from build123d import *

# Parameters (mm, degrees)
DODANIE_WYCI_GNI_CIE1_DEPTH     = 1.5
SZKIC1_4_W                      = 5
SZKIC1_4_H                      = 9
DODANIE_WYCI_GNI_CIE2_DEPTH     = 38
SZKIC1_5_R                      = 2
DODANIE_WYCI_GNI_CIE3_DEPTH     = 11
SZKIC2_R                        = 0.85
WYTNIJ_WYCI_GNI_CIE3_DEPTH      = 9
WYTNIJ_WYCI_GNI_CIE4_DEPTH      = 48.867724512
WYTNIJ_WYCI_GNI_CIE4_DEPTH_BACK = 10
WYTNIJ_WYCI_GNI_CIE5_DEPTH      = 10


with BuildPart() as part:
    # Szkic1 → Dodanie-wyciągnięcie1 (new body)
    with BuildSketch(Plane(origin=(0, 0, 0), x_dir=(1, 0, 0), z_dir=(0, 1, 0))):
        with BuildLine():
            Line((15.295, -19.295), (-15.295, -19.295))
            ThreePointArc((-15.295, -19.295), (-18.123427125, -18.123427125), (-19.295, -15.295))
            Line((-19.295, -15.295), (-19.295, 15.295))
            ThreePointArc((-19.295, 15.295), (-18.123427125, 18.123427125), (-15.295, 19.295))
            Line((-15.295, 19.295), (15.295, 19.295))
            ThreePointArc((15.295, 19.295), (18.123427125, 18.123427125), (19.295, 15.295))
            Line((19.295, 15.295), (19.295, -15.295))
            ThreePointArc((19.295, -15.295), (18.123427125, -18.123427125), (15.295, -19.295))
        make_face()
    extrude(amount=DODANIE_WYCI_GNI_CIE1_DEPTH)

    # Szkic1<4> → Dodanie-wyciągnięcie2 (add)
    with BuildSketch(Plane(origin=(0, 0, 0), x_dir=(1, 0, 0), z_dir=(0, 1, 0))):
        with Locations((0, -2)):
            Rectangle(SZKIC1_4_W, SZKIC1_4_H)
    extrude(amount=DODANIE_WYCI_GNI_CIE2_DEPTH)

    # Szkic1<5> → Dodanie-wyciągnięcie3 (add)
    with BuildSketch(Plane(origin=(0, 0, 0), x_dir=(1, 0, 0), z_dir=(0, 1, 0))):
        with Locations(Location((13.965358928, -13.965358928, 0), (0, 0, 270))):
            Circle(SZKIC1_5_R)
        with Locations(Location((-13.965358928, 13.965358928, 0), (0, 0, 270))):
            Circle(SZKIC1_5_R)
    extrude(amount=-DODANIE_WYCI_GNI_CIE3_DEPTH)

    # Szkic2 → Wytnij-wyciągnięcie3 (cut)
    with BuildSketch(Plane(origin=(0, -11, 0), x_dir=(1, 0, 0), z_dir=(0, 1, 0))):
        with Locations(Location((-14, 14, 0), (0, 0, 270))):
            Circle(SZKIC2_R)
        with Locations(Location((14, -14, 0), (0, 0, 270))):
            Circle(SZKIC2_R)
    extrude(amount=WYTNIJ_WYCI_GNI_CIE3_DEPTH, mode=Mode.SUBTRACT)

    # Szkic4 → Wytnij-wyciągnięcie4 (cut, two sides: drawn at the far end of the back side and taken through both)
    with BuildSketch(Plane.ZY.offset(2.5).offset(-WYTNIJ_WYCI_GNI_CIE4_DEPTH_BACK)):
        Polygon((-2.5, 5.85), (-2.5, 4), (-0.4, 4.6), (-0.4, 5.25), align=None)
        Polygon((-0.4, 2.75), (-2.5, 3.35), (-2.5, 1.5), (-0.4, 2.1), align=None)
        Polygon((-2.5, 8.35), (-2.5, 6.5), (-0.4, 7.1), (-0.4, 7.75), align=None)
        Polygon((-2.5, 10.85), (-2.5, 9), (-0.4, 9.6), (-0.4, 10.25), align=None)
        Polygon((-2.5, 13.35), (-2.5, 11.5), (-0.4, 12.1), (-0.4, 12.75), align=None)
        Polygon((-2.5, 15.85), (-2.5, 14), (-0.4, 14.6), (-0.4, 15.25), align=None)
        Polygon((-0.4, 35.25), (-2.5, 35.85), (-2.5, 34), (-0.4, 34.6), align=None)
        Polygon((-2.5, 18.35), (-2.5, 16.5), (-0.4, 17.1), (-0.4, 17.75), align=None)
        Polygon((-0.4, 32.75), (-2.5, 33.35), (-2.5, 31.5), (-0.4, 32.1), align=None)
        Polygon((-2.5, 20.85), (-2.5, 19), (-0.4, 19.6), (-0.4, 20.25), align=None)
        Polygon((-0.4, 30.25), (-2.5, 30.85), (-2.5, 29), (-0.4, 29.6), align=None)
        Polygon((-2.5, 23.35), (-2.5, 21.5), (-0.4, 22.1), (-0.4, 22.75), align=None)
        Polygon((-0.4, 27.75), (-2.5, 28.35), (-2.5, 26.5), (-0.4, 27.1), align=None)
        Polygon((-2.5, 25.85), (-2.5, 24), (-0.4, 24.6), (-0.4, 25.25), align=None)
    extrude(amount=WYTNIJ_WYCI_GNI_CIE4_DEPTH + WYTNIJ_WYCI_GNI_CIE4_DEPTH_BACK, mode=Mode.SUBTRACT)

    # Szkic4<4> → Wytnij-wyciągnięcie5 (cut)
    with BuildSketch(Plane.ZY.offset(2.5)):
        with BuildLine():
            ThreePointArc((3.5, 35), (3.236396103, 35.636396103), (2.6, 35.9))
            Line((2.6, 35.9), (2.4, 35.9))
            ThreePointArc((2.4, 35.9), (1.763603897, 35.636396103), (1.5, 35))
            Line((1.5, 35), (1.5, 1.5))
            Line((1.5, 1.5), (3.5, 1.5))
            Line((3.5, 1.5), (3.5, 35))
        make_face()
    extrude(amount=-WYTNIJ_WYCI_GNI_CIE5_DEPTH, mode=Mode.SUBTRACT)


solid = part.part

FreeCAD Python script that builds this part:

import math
import FreeCAD as App
import Part
import Sketcher

V = App.Vector
Q = App.Units.Quantity


def add_polygon(sketch, points):
    """Adds a closed chain of lines whose ends are joined by coincident constraints."""
    first, n = sketch.GeometryCount, len(points)
    for a, b in zip(points, points[1:] + points[:1]):
        sketch.addGeometry(Part.LineSegment(App.Vector(*a, 0), App.Vector(*b, 0)), False)
    for i in range(n):
        sketch.addConstraint(Sketcher.Constraint("Coincident", first + i, 2, first + (i + 1) % n, 1))

doc = App.newDocument("Part")
body = doc.addObject("PartDesign::Body", "Body")

# Sketch on XZ plane
sketch1 = body.newObject("Sketcher::SketchObject", "Sketch")
sketch1.AttachmentSupport = (doc.getObject("XZ_Plane"), [""])
sketch1.MapMode = "FlatFace"
sketch1.addGeometry([
    Part.LineSegment(V(-15.3, 19.3, 0), V(15.3, 19.3, 0)),  # 0
    Part.ArcOfCircle(Part.Circle(V(15.3, 15.3, 0), V(0, 0, 1), 4), math.radians(0), math.radians(90)),  # 1
    Part.LineSegment(V(19.3, 15.3, 0), V(19.3, -15.3, 0)),  # 2
    Part.ArcOfCircle(Part.Circle(V(15.3, -15.3, 0), V(0, 0, 1), 4), math.radians(-90), math.radians(0)),  # 3
    Part.LineSegment(V(15.3, -19.3, 0), V(-15.3, -19.3, 0)),  # 4
    Part.ArcOfCircle(Part.Circle(V(-15.3, -15.3, 0), V(0, 0, 1), 4), math.radians(180), math.radians(270)),  # 5
    Part.LineSegment(V(-19.3, -15.3, 0), V(-19.3, 15.3, 0)),  # 6
    Part.ArcOfCircle(Part.Circle(V(-15.3, 15.3, 0), V(0, 0, 1), 4), math.radians(90), math.radians(180)),  # 7
], False)
sketch1.addConstraint([
    Sketcher.Constraint("Tangent", 0, 2, 1, 2),
    Sketcher.Constraint("Tangent", 1, 1, 2, 1),
    Sketcher.Constraint("Tangent", 2, 2, 3, 2),
    Sketcher.Constraint("Tangent", 3, 1, 4, 1),
    Sketcher.Constraint("Tangent", 4, 2, 5, 2),
    Sketcher.Constraint("Tangent", 5, 1, 6, 1),
    Sketcher.Constraint("Tangent", 6, 2, 7, 2),
    Sketcher.Constraint("Tangent", 7, 1, 0, 1),
    Sketcher.Constraint("Horizontal", 0),
    Sketcher.Constraint("Vertical", 2),
    Sketcher.Constraint("Horizontal", 4),
    Sketcher.Constraint("Vertical", 6),
    Sketcher.Constraint("Equal", 1, 3),
    Sketcher.Constraint("Equal", 3, 5),
    Sketcher.Constraint("Equal", 5, 7),
    Sketcher.Constraint("Symmetric", 1, 3, 5, 3, -1, 1),
    Sketcher.Constraint("Equal", 4, 2),
    Sketcher.Constraint("Radius", 1, Q("4 mm")),
    Sketcher.Constraint("DistanceX", 0, 1, 0, 2, Q("30.59 mm")),
])
pad1 = body.newObject("PartDesign::Pad", "Pad")
pad1.Profile = sketch1
pad1.Length = 1.5
pad1.Reversed = True

# Sketch on XZ plane
sketch2 = body.newObject("Sketcher::SketchObject", "Sketch001")
sketch2.AttachmentSupport = (doc.getObject("XZ_Plane"), [""])
sketch2.MapMode = "FlatFace"
add_polygon(sketch2, [(-2, -2), (-2, 6), (2, 6), (2, -2)])  # lines 0-3
sketch2.addConstraint([
    Sketcher.Constraint("Vertical", 0),
    Sketcher.Constraint("Horizontal", 1),
    Sketcher.Constraint("Vertical", 2),
    Sketcher.Constraint("Horizontal", 3),
    Sketcher.Constraint("DistanceX", 1, 1, 1, 2, Q("5 mm")),
    Sketcher.Constraint("DistanceY", 0, 1, 0, 2, Q("9 mm")),
    Sketcher.Constraint("DistanceX", 0, 2, -1, 1, Q("2.5 mm")),
    Sketcher.Constraint("DistanceY", -1, 1, 0, 2, Q("6.5 mm")),
])
pad2 = body.newObject("PartDesign::Pad", "Pad001")
pad2.Profile = sketch2
pad2.Length = 38
pad2.Reversed = True

# Sketch on XZ plane
sketch3 = body.newObject("Sketcher::SketchObject", "Sketch002")
sketch3.AttachmentSupport = (doc.getObject("XZ_Plane"), [""])
sketch3.MapMode = "FlatFace"
sketch3.addGeometry([
    Part.Circle(V(14, 14, 0), V(0, 0, 1), 2),
    Part.Circle(V(-14, -14, 0), V(0, 0, 1), 2),
], False)
sketch3.addConstraint([
    Sketcher.Constraint("Equal", 0, 1),
    Sketcher.Constraint("Symmetric", 0, 3, 1, 3, -1, 1),
    Sketcher.Constraint("Diameter", 0, Q("4 mm")),
    Sketcher.Constraint("DistanceX", -1, 1, 0, 3, Q("13.965359 mm")),
    Sketcher.Constraint("DistanceY", -1, 1, 0, 3, Q("13.965359 mm")),
])
pad3 = body.newObject("PartDesign::Pad", "Pad002")
pad3.Profile = sketch3
pad3.Length = 11

# Sketch on XZ plane
sketch4 = body.newObject("Sketcher::SketchObject", "Sketch003")
sketch4.AttachmentSupport = (doc.getObject("XZ_Plane"), [""])
sketch4.MapMode = "FlatFace"
sketch4.AttachmentOffset = App.Placement(V(0, 0, 11), App.Rotation())
sketch4.addGeometry([
    Part.Circle(V(-14, -14, 0), V(0, 0, 1), 0.8),
    Part.Circle(V(14, 14, 0), V(0, 0, 1), 0.8),
], False)
sketch4.addConstraint([
    Sketcher.Constraint("Equal", 0, 1),
    Sketcher.Constraint("Symmetric", 0, 3, 1, 3, -1, 1),
    Sketcher.Constraint("Diameter", 0, Q("1.7 mm")),
    Sketcher.Constraint("DistanceX", 0, 3, -1, 1, Q("14 mm")),
    Sketcher.Constraint("DistanceY", 0, 3, -1, 1, Q("14 mm")),
])
pocket1 = body.newObject("PartDesign::Pocket", "Pocket")
pocket1.Profile = sketch4
pocket1.Length = 9

# Sketch on YZ plane
sketch5 = body.newObject("Sketcher::SketchObject", "Sketch004")
sketch5.AttachmentSupport = (doc.getObject("YZ_Plane"), [""])
sketch5.MapMode = "FlatFace"
sketch5.AttachmentOffset = App.Placement(V(0, 0, -2.5), App.Rotation())
add_polygon(sketch5, [(5.8, -2.5), (4, -2.5), (4.6, -0.4), (5.2, -0.4)])  # lines 0-3
add_polygon(sketch5, [(2.8, -0.4), (3.4, -2.5), (1.5, -2.5), (2.1, -0.4)])  # lines 4-7
add_polygon(sketch5, [(8.3, -2.5), (6.5, -2.5), (7.1, -0.4), (7.8, -0.4)])  # lines 8-11
add_polygon(sketch5, [(10.8, -2.5), (9, -2.5), (9.6, -0.4), (10.2, -0.4)])  # lines 12-15
add_polygon(sketch5, [(13.3, -2.5), (11.5, -2.5), (12.1, -0.4), (12.8, -0.4)])  # lines 16-19
add_polygon(sketch5, [(15.8, -2.5), (14, -2.5), (14.6, -0.4), (15.2, -0.4)])  # lines 20-23
add_polygon(sketch5, [(35.2, -0.4), (35.9, -2.5), (34, -2.5), (34.6, -0.4)])  # lines 24-27
add_polygon(sketch5, [(18.4, -2.5), (16.5, -2.5), (17.1, -0.4), (17.8, -0.4)])  # lines 28-31
add_polygon(sketch5, [(32.8, -0.4), (33.4, -2.5), (31.5, -2.5), (32.1, -0.4)])  # lines 32-35
add_polygon(sketch5, [(20.9, -2.5), (19, -2.5), (19.6, -0.4), (20.2, -0.4)])  # lines 36-39
add_polygon(sketch5, [(30.2, -0.4), (30.9, -2.5), (29, -2.5), (29.6, -0.4)])  # lines 40-43
add_polygon(sketch5, [(23.4, -2.5), (21.5, -2.5), (22.1, -0.4), (22.8, -0.4)])  # lines 44-47
add_polygon(sketch5, [(27.8, -0.4), (28.4, -2.5), (26.5, -2.5), (27.1, -0.4)])  # lines 48-51
add_polygon(sketch5, [(25.9, -2.5), (24, -2.5), (24.6, -0.4), (25.2, -0.4)])  # lines 52-55
sketch5.addConstraint([
    Sketcher.Constraint("Horizontal", 0),
    Sketcher.Constraint("Horizontal", 2),
    Sketcher.Constraint("Horizontal", 5),
    Sketcher.Constraint("Horizontal", 7),
    Sketcher.Constraint("Horizontal", 8),
    Sketcher.Constraint("Horizontal", 10),
    Sketcher.Constraint("Horizontal", 12),
    Sketcher.Constraint("Horizontal", 14),
    Sketcher.Constraint("Horizontal", 16),
    Sketcher.Constraint("Horizontal", 18),
    Sketcher.Constraint("Horizontal", 20),
    Sketcher.Constraint("Horizontal", 22),
    Sketcher.Constraint("Horizontal", 25),
    Sketcher.Constraint("Horizontal", 27),
    Sketcher.Constraint("Horizontal", 28),
    Sketcher.Constraint("Horizontal", 30),
    Sketcher.Constraint("Horizontal", 33),
    Sketcher.Constraint("Horizontal", 35),
    Sketcher.Constraint("Horizontal", 36),
    Sketcher.Constraint("Horizontal", 38),
    Sketcher.Constraint("Horizontal", 41),
    Sketcher.Constraint("Horizontal", 43),
    Sketcher.Constraint("Horizontal", 44),
    Sketcher.Constraint("Horizontal", 46),
    Sketcher.Constraint("Horizontal", 49),
    Sketcher.Constraint("Horizontal", 51),
    Sketcher.Constraint("Horizontal", 52),
    Sketcher.Constraint("Horizontal", 54),
    Sketcher.Constraint("Parallel", 3, 4),
    Sketcher.Constraint("Parallel", 1, 6),
    Sketcher.Constraint("Parallel", 6, 9),
    Sketcher.Constraint("Parallel", 4, 11),
    Sketcher.Constraint("Parallel", 9, 13),
    Sketcher.Constraint("Parallel", 11, 15),
    Sketcher.Constraint("Parallel", 13, 17),
    Sketcher.Constraint("Parallel", 15, 19),
    Sketcher.Constraint("Parallel", 17, 21),
    Sketcher.Constraint("Parallel", 19, 23),
    Sketcher.Constraint("Parallel", 23, 24),
    Sketcher.Constraint("Parallel", 21, 26),
    Sketcher.Constraint("Parallel", 26, 29),
    Sketcher.Constraint("Parallel", 24, 31),
    Sketcher.Constraint("Parallel", 31, 32),
    Sketcher.Constraint("Parallel", 29, 34),
    Sketcher.Constraint("Parallel", 34, 37),
    Sketcher.Constraint("Parallel", 32, 39),
    Sketcher.Constraint("Parallel", 39, 40),
    Sketcher.Constraint("Parallel", 37, 42),
    Sketcher.Constraint("Parallel", 42, 45),
    Sketcher.Constraint("Parallel", 40, 47),
    Sketcher.Constraint("Parallel", 47, 48),
    Sketcher.Constraint("Parallel", 45, 50),
    Sketcher.Constraint("Parallel", 50, 53),
    Sketcher.Constraint("Parallel", 48, 55),
    Sketcher.Constraint("Horizontal", 3, 2, 4, 2),
    Sketcher.Constraint("Horizontal", 2, 2, 6, 2),
    Sketcher.Constraint("Horizontal", 5, 2, 8, 2),
    Sketcher.Constraint("Horizontal", 7, 2, 9, 2),
    Sketcher.Constraint("Horizontal", 11, 2, 12, 2),
    Sketcher.Constraint("Horizontal", 10, 2, 13, 2),
    Sketcher.Constraint("Horizontal", 15, 2, 16, 2),
    Sketcher.Constraint("Horizontal", 14, 2, 17, 2),
    Sketcher.Constraint("Horizontal", 19, 2, 20, 2),
    Sketcher.Constraint("Horizontal", 18, 2, 21, 2),
    Sketcher.Constraint("Horizontal", 23, 2, 24, 2),
    Sketcher.Constraint("Horizontal", 22, 2, 26, 2),
    Sketcher.Constraint("Horizontal", 25, 2, 28, 2),
    Sketcher.Constraint("Horizontal", 27, 2, 29, 2),
    Sketcher.Constraint("Horizontal", 31, 2, 32, 2),
    Sketcher.Constraint("Horizontal", 30, 2, 34, 2),
    Sketcher.Constraint("Horizontal", 33, 2, 36, 2),
    Sketcher.Constraint("Horizontal", 35, 2, 37, 2),
    Sketcher.Constraint("Horizontal", 39, 2, 40, 2),
    Sketcher.Constraint("Horizontal", 38, 2, 42, 2),
    Sketcher.Constraint("Horizontal", 41, 2, 44, 2),
    Sketcher.Constraint("Horizontal", 43, 2, 45, 2),
    Sketcher.Constraint("Horizontal", 47, 2, 48, 2),
    Sketcher.Constraint("Horizontal", 46, 2, 50, 2),
    Sketcher.Constraint("Horizontal", 49, 2, 52, 2),
    Sketcher.Constraint("Horizontal", 51, 2, 53, 2),
    Sketcher.Constraint("Equal", 0, 5),
    Sketcher.Constraint("Equal", 5, 8),
    Sketcher.Constraint("Equal", 8, 12),
    Sketcher.Constraint("Equal", 12, 16),
    Sketcher.Constraint("Equal", 16, 20),
    Sketcher.Constraint("Equal", 20, 25),
    Sketcher.Constraint("Equal", 25, 28),
    Sketcher.Constraint("Equal", 28, 33),
    Sketcher.Constraint("Equal", 33, 36),
    Sketcher.Constraint("Equal", 36, 41),
    Sketcher.Constraint("Equal", 41, 44),
    Sketcher.Constraint("Equal", 44, 49),
    Sketcher.Constraint("Equal", 49, 52),
    Sketcher.Constraint("Equal", 1, 3),
    Sketcher.Constraint("DistanceX", -1, 1, 0, 2, Q("4 mm")),
    Sketcher.Constraint("DistanceX", -1, 1, 12, 2, Q("9 mm")),
    Sketcher.Constraint("DistanceX", -1, 1, 20, 2, Q("14 mm")),
    Sketcher.Constraint("DistanceX", -1, 1, 25, 2, Q("34 mm")),
    Sketcher.Constraint("DistanceX", -1, 1, 36, 2, Q("19 mm")),
    Sketcher.Constraint("DistanceX", -1, 1, 41, 2, Q("29 mm")),
    Sketcher.Constraint("DistanceX", -1, 1, 52, 2, Q("24 mm")),
    Sketcher.Constraint("DistanceX", 31, 2, 32, 2, Q("15 mm")),
    Sketcher.Constraint("DistanceX", 0, 2, 0, 1, Q("1.85 mm")),
    Sketcher.Constraint("DistanceX", 2, 1, 2, 2, Q("0.65 mm")),
    Sketcher.Constraint("DistanceY", 0, 2, -1, 1, Q("2.5 mm")),
    Sketcher.Constraint("DistanceY", 1, 2, -1, 1, Q("0.4 mm")),
    Sketcher.Constraint("DistanceX", -1, 1, 5, 2, Q("1.5 mm")),
    Sketcher.Constraint("DistanceX", -1, 1, 8, 2, Q("6.5 mm")),
    Sketcher.Constraint("DistanceX", -1, 1, 16, 2, Q("11.5 mm")),
    Sketcher.Constraint("DistanceX", -1, 1, 28, 2, Q("16.5 mm")),
    Sketcher.Constraint("DistanceX", -1, 1, 44, 2, Q("21.5 mm")),
    Sketcher.Constraint("DistanceX", -1, 1, 49, 2, Q("26.5 mm")),
])
pocket2 = body.newObject("PartDesign::Pocket", "Pocket001")
pocket2.Profile = sketch5
pocket2.Type = "ThroughAll"
pocket2.Midplane = True

# Sketch on YZ plane
sketch6 = body.newObject("Sketcher::SketchObject", "Sketch005")
sketch6.AttachmentSupport = (doc.getObject("YZ_Plane"), [""])
sketch6.MapMode = "FlatFace"
sketch6.AttachmentOffset = App.Placement(V(0, 0, -2.5), App.Rotation())
sketch6.addGeometry([
    Part.ArcOfCircle(Part.Circle(V(35, 2.6, 0), V(0, 0, 1), 0.9), math.radians(0), math.radians(90)),  # 0
    Part.LineSegment(V(35.9, 2.6, 0), V(35.9, 2.4, 0)),  # 1
    Part.ArcOfCircle(Part.Circle(V(35, 2.4, 0), V(0, 0, 1), 0.9), math.radians(-90), math.radians(0)),  # 2
    Part.LineSegment(V(35, 1.5, 0), V(1.5, 1.5, 0)),  # 3
    Part.LineSegment(V(1.5, 1.5, 0), V(1.5, 3.5, 0)),  # 4
    Part.LineSegment(V(1.5, 3.5, 0), V(35, 3.5, 0)),  # 5
], False)
sketch6.addConstraint([
    Sketcher.Constraint("Tangent", 0, 1, 1, 1),
    Sketcher.Constraint("Tangent", 1, 2, 2, 2),
    Sketcher.Constraint("Tangent", 2, 1, 3, 1),
    Sketcher.Constraint("Coincident", 3, 2, 4, 1),
    Sketcher.Constraint("Coincident", 4, 2, 5, 1),
    Sketcher.Constraint("Tangent", 5, 2, 0, 2),
    Sketcher.Constraint("Vertical", 1),
    Sketcher.Constraint("Horizontal", 3),
    Sketcher.Constraint("Vertical", 4),
    Sketcher.Constraint("Horizontal", 5),
    Sketcher.Constraint("Equal", 0, 2),
    Sketcher.Constraint("Radius", 0, Q("0.9 mm")),
    Sketcher.Constraint("DistanceY", 4, 1, 4, 2, Q("2 mm")),
    Sketcher.Constraint("DistanceX", 3, 2, 3, 1, Q("33.5 mm")),
    Sketcher.Constraint("DistanceX", -1, 1, 0, 3, Q("35 mm")),
    Sketcher.Constraint("DistanceY", -1, 1, 0, 3, Q("2.6 mm")),
])
pocket3 = body.newObject("PartDesign::Pocket", "Pocket002")
pocket3.Profile = sketch6
pocket3.Length = 10
pocket3.Reversed = True

doc.recompute()
